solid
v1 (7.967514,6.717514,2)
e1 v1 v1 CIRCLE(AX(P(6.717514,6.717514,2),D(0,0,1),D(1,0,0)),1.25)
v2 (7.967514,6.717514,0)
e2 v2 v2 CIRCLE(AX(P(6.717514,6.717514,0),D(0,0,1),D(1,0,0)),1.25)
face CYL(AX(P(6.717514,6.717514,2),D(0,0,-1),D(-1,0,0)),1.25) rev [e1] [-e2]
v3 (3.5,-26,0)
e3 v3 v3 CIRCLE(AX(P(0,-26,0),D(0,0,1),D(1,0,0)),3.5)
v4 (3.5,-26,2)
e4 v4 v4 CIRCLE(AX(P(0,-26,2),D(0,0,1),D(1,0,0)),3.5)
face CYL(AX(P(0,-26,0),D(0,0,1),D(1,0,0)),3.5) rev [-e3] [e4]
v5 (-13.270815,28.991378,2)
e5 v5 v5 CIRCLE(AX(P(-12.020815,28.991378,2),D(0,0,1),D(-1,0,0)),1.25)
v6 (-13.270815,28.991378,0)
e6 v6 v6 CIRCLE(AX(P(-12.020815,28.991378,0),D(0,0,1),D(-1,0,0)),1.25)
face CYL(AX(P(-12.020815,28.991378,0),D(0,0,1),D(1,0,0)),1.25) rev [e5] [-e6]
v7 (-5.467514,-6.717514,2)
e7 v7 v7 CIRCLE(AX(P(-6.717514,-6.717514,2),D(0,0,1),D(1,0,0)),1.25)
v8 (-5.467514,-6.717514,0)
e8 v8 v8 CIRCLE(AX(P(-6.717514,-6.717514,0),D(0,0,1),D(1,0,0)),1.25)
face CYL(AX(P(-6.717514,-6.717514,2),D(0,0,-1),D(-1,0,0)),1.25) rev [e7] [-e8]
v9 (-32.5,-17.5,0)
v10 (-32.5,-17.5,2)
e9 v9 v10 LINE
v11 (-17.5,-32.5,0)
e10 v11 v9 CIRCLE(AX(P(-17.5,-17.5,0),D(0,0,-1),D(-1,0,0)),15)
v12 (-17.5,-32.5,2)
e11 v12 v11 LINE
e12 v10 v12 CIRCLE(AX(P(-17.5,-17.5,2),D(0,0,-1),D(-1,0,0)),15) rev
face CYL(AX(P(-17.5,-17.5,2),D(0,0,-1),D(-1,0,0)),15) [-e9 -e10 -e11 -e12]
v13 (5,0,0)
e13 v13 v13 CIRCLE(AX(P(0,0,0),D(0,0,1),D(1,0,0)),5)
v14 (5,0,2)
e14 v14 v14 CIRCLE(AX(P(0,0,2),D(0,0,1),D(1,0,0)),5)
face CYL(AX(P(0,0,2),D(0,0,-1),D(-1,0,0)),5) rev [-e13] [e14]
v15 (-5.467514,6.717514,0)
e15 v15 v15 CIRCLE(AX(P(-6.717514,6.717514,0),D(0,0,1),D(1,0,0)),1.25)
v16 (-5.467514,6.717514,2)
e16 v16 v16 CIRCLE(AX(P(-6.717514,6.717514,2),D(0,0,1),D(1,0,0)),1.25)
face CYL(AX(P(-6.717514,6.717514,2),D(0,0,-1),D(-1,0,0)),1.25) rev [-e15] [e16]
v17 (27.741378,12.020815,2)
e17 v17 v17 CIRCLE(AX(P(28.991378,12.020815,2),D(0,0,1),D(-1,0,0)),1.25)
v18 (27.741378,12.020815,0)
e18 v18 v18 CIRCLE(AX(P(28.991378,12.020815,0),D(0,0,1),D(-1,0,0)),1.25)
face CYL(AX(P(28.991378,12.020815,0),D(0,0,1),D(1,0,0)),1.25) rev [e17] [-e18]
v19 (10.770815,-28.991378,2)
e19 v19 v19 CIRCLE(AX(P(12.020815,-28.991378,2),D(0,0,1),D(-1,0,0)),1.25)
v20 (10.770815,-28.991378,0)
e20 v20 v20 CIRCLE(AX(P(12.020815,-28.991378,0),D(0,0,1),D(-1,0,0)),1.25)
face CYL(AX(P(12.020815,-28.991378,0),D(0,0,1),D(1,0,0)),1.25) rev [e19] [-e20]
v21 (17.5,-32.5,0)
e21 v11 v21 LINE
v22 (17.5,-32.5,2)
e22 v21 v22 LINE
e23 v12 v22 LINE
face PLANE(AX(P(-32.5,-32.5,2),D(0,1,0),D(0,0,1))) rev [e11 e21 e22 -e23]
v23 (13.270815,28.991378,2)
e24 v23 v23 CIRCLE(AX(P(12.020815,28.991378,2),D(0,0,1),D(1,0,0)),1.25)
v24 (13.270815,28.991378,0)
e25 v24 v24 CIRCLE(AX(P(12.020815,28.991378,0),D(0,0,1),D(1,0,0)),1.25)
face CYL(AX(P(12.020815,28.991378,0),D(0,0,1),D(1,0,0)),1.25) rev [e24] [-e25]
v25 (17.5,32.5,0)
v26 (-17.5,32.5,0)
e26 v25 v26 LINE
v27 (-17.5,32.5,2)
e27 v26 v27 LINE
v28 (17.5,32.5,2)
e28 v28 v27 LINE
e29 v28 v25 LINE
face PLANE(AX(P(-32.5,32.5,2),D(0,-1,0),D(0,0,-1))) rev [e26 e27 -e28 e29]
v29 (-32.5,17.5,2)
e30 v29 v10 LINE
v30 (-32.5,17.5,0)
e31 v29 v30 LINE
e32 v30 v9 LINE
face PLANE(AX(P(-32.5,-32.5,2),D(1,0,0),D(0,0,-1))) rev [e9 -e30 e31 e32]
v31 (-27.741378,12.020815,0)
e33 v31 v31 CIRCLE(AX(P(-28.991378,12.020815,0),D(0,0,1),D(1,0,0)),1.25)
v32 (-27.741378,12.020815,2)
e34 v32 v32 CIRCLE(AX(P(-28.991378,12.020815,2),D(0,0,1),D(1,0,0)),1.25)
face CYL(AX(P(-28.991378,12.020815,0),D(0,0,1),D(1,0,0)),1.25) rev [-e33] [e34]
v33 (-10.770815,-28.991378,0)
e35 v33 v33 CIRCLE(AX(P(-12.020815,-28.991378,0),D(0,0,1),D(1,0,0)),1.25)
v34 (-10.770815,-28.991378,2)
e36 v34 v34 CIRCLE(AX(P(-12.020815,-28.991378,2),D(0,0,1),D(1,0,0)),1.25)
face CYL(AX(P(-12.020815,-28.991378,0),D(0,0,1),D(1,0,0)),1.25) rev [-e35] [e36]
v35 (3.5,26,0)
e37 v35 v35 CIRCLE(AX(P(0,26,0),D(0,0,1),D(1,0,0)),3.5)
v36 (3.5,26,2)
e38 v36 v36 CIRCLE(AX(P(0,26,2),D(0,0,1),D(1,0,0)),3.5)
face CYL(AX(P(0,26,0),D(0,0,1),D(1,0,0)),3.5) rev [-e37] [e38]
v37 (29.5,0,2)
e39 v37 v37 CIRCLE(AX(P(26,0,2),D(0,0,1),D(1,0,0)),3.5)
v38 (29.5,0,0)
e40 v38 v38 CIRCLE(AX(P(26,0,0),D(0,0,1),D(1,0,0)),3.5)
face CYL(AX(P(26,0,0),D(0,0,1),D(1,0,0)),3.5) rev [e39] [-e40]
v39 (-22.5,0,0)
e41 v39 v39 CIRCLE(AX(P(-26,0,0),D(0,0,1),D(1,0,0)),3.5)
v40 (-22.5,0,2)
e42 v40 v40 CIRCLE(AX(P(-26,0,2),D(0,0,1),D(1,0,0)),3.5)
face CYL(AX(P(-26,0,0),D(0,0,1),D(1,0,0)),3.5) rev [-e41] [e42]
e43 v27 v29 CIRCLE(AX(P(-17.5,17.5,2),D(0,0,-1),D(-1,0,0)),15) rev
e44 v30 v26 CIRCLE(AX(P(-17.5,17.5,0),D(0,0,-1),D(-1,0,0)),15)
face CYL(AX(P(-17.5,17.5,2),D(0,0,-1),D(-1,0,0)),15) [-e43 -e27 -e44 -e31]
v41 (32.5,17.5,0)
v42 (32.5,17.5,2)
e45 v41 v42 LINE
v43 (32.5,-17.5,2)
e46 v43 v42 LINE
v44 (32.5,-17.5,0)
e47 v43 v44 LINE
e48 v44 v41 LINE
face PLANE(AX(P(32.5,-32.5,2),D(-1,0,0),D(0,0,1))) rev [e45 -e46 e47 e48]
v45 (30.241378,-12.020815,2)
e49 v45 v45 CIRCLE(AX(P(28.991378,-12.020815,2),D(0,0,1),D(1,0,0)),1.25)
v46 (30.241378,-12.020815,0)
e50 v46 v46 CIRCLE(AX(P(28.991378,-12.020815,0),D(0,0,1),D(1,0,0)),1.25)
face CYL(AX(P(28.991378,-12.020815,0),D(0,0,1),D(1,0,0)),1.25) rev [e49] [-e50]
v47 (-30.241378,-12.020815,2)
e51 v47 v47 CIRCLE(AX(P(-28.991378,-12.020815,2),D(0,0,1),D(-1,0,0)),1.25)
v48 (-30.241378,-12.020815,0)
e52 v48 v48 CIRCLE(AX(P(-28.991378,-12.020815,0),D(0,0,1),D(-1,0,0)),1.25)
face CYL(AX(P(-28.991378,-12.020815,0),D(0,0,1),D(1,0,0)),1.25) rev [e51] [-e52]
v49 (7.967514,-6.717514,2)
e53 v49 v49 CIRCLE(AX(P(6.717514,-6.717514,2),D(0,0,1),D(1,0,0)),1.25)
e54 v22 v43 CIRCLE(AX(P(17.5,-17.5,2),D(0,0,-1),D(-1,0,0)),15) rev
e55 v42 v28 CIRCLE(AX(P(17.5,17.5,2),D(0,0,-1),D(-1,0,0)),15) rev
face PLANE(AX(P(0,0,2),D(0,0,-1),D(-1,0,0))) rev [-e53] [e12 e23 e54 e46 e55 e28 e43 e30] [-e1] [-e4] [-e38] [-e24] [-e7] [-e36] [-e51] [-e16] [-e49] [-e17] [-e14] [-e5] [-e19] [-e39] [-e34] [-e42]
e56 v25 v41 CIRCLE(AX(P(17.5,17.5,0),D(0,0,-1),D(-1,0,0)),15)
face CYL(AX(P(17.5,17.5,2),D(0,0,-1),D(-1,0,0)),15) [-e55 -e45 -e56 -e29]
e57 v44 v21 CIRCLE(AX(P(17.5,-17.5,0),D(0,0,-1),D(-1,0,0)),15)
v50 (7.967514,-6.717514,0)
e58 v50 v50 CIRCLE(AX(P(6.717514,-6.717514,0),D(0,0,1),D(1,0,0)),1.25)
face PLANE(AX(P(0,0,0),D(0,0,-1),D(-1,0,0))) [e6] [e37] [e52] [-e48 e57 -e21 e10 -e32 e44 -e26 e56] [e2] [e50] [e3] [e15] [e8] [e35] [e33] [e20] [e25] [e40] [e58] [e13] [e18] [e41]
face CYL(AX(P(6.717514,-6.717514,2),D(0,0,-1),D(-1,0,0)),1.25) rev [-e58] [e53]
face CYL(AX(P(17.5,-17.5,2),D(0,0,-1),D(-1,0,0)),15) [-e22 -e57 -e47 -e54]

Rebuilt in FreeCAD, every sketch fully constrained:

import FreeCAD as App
import Part
import Sketcher

V = App.Vector


def edges_at(feature, points):
    """Names of the edges that pass closest to the given points."""
    edges = feature.Shape.Edges
    near = lambda p: min(range(len(edges)), key=lambda i: edges[i].distToShape(Part.Vertex(*p))[0])
    return sorted({f"Edge{near(p) + 1}" for p in points})


def add_polygon(sketch, points):
    """Adds a closed chain of lines whose ends are joined by coincident constraints."""
    first, n = sketch.GeometryCount, len(points)
    for a, b in zip(points, points[1:] + points[:1]):
        sketch.addGeometry(Part.LineSegment(App.Vector(*a, 0), App.Vector(*b, 0)), False)
    for i in range(n):
        sketch.addConstraint(Sketcher.Constraint("Coincident", first + i, 2, first + (i + 1) % n, 1))

doc = App.newDocument("Part")
body = doc.addObject("PartDesign::Body", "Body")

# Sketch on XY plane
sketch1 = doc.addObject("Sketcher::SketchObject", "Sketch")
body.addObject(sketch1)
sketch1.AttachmentSupport = (doc.XY_Plane, [""])
sketch1.MapMode = "FlatFace"
add_polygon(sketch1, [(-32.5, 32.5), (-32.5, -32.5), (32.5, -32.5), (32.5, 32.5)])  # lines 0-3
sketch1.addGeometry(Part.Circle(V(-6.717514, -6.717514, 0), V(0, 0, 1), 1.25), False)  # 4
sketch1.addGeometry(Part.Circle(V(6.717514, -6.717514, 0), V(0, 0, 1), 1.25), False)  # 5
sketch1.addGeometry(Part.Circle(V(-6.717514, 6.717514, 0), V(0, 0, 1), 1.25), False)  # 6
sketch1.addGeometry(Part.Circle(V(0, 0, 0), V(0, 0, 1), 5), False)  # 7
sketch1.addGeometry(Part.Circle(V(6.717514, 6.717514, 0), V(0, 0, 1), 1.25), False)  # 8
sketch1.addConstraint(Sketcher.Constraint("Vertical", 0))
sketch1.addConstraint(Sketcher.Constraint("Horizontal", 1))
sketch1.addConstraint(Sketcher.Constraint("Vertical", 2))
sketch1.addConstraint(Sketcher.Constraint("Horizontal", 3))
sketch1.addConstraint(Sketcher.Constraint("Coincident", 7, 3, -1, 1))
sketch1.addConstraint(Sketcher.Constraint("Equal", 4, 5))
sketch1.addConstraint(Sketcher.Constraint("Equal", 5, 6))
sketch1.addConstraint(Sketcher.Constraint("Equal", 6, 8))
sketch1.addConstraint(Sketcher.Constraint("Symmetric", 5, 3, 6, 3, -1, 1))
sketch1.addConstraint(Sketcher.Constraint("Symmetric", 4, 3, 8, 3, -1, 1))
sketch1.addConstraint(Sketcher.Constraint("Symmetric", 0, 2, 2, 2, -1, 1))
sketch1.addConstraint(Sketcher.Constraint("Symmetric", 4, 3, 5, 3, -2))
sketch1.addConstraint(Sketcher.Constraint("Equal", 3, 0))
sketch1.addConstraint(Sketcher.Constraint("Diameter", 7, 10.0))
sketch1.addConstraint(Sketcher.Constraint("Diameter", 4, 2.5))
sketch1.addConstraint(Sketcher.Constraint("DistanceX", 1, 1, 1, 2, 65.0))
sketch1.addConstraint(Sketcher.Constraint("DistanceX", 4, 3, 5, 3, 13.435029))
sketch1.addConstraint(Sketcher.Constraint("DistanceY", 4, 3, 6, 3, 13.435029))
pad1 = doc.addObject("PartDesign::Pad", "Pad")
body.addObject(pad1)
pad1.Profile = sketch1
pad1.Length = 2
doc.recompute()

fillet = doc.addObject("PartDesign::Fillet", "Fillet")
body.addObject(fillet)
fillet.Base = (pad1, edges_at(pad1, [
    (32.5, -32.5, 1),
    (-32.5, -32.5, 1),
    (-32.5, 32.5, 1),
    (32.5, 32.5, 1),
]))
fillet.Radius = 15

# Sketch on XY plane
sketch2 = doc.addObject("Sketcher::SketchObject", "Sketch001")
body.addObject(sketch2)
sketch2.AttachmentSupport = (doc.XY_Plane, [""])
sketch2.MapMode = "FlatFace"
sketch2.AttachmentOffset = App.Placement(V(0, 0, 2), App.Rotation())
sketch2.addGeometry(Part.Circle(V(-26, 0, 0), V(0, 0, 1), 3.5), False)
sketch2.addGeometry(Part.Circle(V(0, 26, 0), V(0, 0, 1), 3.5), False)
sketch2.addGeometry(Part.Circle(V(26, 0, 0), V(0, 0, 1), 3.5), False)
sketch2.addGeometry(Part.Circle(V(0, -26, 0), V(0, 0, 1), 3.5), False)
sketch2.addConstraint(Sketcher.Constraint("Equal", 0, 1))
sketch2.addConstraint(Sketcher.Constraint("Equal", 1, 2))
sketch2.addConstraint(Sketcher.Constraint("Equal", 2, 3))
sketch2.addConstraint(Sketcher.Constraint("Symmetric", 0, 3, 2, 3, -1, 1))
sketch2.addConstraint(Sketcher.Constraint("Symmetric", 1, 3, 3, 3, -1, 1))
sketch2.addConstraint(Sketcher.Constraint("PointOnObject", 0, 3, -1))
sketch2.addConstraint(Sketcher.Constraint("PointOnObject", 1, 3, -2))
sketch2.addConstraint(Sketcher.Constraint("Diameter", 0, 7.0))
sketch2.addConstraint(Sketcher.Constraint("DistanceX", 0, 3, -1, 1, 26.0))
sketch2.addConstraint(Sketcher.Constraint("DistanceY", -1, 1, 1, 3, 26.0))
pocket1 = doc.addObject("PartDesign::Pocket", "Pocket")
body.addObject(pocket1)
pocket1.Profile = sketch2
pocket1.Length = 2

# Sketch on XY plane
sketch3 = doc.addObject("Sketcher::SketchObject", "Sketch002")
body.addObject(sketch3)
sketch3.AttachmentSupport = (doc.XY_Plane, [""])
sketch3.MapMode = "FlatFace"
sketch3.AttachmentOffset = App.Placement(V(0, 0, 2), App.Rotation())
sketch3.addGeometry(Part.Circle(V(-28.991378, 12.020815, 0), V(0, 0, 1), 1.25), False)
sketch3.addGeometry(Part.Circle(V(-12.020815, 28.991378, 0), V(0, 0, 1), 1.25), False)
sketch3.addGeometry(Part.Circle(V(12.020815, 28.991378, 0), V(0, 0, 1), 1.25), False)
sketch3.addGeometry(Part.Circle(V(28.991378, 12.020815, 0), V(0, 0, 1), 1.25), False)
sketch3.addGeometry(Part.Circle(V(28.991378, -12.020815, 0), V(0, 0, 1), 1.25), False)
sketch3.addGeometry(Part.Circle(V(12.020815, -28.991378, 0), V(0, 0, 1), 1.25), False)
sketch3.addGeometry(Part.Circle(V(-12.020815, -28.991378, 0), V(0, 0, 1), 1.25), False)
sketch3.addGeometry(Part.Circle(V(-28.991378, -12.020815, 0), V(0, 0, 1), 1.25), False)
sketch3.addConstraint(Sketcher.Constraint("Equal", 0, 1))
sketch3.addConstraint(Sketcher.Constraint("Equal", 1, 2))
sketch3.addConstraint(Sketcher.Constraint("Equal", 2, 3))
sketch3.addConstraint(Sketcher.Constraint("Equal", 3, 4))
sketch3.addConstraint(Sketcher.Constraint("Equal", 4, 5))
sketch3.addConstraint(Sketcher.Constraint("Equal", 5, 6))
sketch3.addConstraint(Sketcher.Constraint("Equal", 6, 7))
sketch3.addConstraint(Sketcher.Constraint("Symmetric", 0, 3, 4, 3, -1, 1))
sketch3.addConstraint(Sketcher.Constraint("Symmetric", 1, 3, 5, 3, -1, 1))
sketch3.addConstraint(Sketcher.Constraint("Symmetric", 2, 3, 6, 3, -1, 1))
sketch3.addConstraint(Sketcher.Constraint("Symmetric", 3, 3, 7, 3, -1, 1))
sketch3.addConstraint(Sketcher.Constraint("Symmetric", 1, 3, 2, 3, -2))
sketch3.addConstraint(Sketcher.Constraint("Symmetric", 0, 3, 3, 3, -2))
sketch3.addConstraint(Sketcher.Constraint("Diameter", 0, 2.5))
sketch3.addConstraint(Sketcher.Constraint("DistanceX", 0, 3, -1, 1, 28.991378))
sketch3.addConstraint(Sketcher.Constraint("DistanceY", -1, 1, 1, 3, 28.991378))
sketch3.addConstraint(Sketcher.Constraint("DistanceX", 1, 3, 2, 3, 24.041631))
sketch3.addConstraint(Sketcher.Constraint("DistanceY", 4, 3, 3, 3, 24.041631))
pocket2 = doc.addObject("PartDesign::Pocket", "Pocket001")
body.addObject(pocket2)
pocket2.Profile = sketch3
pocket2.Length = 2

doc.recompute()
